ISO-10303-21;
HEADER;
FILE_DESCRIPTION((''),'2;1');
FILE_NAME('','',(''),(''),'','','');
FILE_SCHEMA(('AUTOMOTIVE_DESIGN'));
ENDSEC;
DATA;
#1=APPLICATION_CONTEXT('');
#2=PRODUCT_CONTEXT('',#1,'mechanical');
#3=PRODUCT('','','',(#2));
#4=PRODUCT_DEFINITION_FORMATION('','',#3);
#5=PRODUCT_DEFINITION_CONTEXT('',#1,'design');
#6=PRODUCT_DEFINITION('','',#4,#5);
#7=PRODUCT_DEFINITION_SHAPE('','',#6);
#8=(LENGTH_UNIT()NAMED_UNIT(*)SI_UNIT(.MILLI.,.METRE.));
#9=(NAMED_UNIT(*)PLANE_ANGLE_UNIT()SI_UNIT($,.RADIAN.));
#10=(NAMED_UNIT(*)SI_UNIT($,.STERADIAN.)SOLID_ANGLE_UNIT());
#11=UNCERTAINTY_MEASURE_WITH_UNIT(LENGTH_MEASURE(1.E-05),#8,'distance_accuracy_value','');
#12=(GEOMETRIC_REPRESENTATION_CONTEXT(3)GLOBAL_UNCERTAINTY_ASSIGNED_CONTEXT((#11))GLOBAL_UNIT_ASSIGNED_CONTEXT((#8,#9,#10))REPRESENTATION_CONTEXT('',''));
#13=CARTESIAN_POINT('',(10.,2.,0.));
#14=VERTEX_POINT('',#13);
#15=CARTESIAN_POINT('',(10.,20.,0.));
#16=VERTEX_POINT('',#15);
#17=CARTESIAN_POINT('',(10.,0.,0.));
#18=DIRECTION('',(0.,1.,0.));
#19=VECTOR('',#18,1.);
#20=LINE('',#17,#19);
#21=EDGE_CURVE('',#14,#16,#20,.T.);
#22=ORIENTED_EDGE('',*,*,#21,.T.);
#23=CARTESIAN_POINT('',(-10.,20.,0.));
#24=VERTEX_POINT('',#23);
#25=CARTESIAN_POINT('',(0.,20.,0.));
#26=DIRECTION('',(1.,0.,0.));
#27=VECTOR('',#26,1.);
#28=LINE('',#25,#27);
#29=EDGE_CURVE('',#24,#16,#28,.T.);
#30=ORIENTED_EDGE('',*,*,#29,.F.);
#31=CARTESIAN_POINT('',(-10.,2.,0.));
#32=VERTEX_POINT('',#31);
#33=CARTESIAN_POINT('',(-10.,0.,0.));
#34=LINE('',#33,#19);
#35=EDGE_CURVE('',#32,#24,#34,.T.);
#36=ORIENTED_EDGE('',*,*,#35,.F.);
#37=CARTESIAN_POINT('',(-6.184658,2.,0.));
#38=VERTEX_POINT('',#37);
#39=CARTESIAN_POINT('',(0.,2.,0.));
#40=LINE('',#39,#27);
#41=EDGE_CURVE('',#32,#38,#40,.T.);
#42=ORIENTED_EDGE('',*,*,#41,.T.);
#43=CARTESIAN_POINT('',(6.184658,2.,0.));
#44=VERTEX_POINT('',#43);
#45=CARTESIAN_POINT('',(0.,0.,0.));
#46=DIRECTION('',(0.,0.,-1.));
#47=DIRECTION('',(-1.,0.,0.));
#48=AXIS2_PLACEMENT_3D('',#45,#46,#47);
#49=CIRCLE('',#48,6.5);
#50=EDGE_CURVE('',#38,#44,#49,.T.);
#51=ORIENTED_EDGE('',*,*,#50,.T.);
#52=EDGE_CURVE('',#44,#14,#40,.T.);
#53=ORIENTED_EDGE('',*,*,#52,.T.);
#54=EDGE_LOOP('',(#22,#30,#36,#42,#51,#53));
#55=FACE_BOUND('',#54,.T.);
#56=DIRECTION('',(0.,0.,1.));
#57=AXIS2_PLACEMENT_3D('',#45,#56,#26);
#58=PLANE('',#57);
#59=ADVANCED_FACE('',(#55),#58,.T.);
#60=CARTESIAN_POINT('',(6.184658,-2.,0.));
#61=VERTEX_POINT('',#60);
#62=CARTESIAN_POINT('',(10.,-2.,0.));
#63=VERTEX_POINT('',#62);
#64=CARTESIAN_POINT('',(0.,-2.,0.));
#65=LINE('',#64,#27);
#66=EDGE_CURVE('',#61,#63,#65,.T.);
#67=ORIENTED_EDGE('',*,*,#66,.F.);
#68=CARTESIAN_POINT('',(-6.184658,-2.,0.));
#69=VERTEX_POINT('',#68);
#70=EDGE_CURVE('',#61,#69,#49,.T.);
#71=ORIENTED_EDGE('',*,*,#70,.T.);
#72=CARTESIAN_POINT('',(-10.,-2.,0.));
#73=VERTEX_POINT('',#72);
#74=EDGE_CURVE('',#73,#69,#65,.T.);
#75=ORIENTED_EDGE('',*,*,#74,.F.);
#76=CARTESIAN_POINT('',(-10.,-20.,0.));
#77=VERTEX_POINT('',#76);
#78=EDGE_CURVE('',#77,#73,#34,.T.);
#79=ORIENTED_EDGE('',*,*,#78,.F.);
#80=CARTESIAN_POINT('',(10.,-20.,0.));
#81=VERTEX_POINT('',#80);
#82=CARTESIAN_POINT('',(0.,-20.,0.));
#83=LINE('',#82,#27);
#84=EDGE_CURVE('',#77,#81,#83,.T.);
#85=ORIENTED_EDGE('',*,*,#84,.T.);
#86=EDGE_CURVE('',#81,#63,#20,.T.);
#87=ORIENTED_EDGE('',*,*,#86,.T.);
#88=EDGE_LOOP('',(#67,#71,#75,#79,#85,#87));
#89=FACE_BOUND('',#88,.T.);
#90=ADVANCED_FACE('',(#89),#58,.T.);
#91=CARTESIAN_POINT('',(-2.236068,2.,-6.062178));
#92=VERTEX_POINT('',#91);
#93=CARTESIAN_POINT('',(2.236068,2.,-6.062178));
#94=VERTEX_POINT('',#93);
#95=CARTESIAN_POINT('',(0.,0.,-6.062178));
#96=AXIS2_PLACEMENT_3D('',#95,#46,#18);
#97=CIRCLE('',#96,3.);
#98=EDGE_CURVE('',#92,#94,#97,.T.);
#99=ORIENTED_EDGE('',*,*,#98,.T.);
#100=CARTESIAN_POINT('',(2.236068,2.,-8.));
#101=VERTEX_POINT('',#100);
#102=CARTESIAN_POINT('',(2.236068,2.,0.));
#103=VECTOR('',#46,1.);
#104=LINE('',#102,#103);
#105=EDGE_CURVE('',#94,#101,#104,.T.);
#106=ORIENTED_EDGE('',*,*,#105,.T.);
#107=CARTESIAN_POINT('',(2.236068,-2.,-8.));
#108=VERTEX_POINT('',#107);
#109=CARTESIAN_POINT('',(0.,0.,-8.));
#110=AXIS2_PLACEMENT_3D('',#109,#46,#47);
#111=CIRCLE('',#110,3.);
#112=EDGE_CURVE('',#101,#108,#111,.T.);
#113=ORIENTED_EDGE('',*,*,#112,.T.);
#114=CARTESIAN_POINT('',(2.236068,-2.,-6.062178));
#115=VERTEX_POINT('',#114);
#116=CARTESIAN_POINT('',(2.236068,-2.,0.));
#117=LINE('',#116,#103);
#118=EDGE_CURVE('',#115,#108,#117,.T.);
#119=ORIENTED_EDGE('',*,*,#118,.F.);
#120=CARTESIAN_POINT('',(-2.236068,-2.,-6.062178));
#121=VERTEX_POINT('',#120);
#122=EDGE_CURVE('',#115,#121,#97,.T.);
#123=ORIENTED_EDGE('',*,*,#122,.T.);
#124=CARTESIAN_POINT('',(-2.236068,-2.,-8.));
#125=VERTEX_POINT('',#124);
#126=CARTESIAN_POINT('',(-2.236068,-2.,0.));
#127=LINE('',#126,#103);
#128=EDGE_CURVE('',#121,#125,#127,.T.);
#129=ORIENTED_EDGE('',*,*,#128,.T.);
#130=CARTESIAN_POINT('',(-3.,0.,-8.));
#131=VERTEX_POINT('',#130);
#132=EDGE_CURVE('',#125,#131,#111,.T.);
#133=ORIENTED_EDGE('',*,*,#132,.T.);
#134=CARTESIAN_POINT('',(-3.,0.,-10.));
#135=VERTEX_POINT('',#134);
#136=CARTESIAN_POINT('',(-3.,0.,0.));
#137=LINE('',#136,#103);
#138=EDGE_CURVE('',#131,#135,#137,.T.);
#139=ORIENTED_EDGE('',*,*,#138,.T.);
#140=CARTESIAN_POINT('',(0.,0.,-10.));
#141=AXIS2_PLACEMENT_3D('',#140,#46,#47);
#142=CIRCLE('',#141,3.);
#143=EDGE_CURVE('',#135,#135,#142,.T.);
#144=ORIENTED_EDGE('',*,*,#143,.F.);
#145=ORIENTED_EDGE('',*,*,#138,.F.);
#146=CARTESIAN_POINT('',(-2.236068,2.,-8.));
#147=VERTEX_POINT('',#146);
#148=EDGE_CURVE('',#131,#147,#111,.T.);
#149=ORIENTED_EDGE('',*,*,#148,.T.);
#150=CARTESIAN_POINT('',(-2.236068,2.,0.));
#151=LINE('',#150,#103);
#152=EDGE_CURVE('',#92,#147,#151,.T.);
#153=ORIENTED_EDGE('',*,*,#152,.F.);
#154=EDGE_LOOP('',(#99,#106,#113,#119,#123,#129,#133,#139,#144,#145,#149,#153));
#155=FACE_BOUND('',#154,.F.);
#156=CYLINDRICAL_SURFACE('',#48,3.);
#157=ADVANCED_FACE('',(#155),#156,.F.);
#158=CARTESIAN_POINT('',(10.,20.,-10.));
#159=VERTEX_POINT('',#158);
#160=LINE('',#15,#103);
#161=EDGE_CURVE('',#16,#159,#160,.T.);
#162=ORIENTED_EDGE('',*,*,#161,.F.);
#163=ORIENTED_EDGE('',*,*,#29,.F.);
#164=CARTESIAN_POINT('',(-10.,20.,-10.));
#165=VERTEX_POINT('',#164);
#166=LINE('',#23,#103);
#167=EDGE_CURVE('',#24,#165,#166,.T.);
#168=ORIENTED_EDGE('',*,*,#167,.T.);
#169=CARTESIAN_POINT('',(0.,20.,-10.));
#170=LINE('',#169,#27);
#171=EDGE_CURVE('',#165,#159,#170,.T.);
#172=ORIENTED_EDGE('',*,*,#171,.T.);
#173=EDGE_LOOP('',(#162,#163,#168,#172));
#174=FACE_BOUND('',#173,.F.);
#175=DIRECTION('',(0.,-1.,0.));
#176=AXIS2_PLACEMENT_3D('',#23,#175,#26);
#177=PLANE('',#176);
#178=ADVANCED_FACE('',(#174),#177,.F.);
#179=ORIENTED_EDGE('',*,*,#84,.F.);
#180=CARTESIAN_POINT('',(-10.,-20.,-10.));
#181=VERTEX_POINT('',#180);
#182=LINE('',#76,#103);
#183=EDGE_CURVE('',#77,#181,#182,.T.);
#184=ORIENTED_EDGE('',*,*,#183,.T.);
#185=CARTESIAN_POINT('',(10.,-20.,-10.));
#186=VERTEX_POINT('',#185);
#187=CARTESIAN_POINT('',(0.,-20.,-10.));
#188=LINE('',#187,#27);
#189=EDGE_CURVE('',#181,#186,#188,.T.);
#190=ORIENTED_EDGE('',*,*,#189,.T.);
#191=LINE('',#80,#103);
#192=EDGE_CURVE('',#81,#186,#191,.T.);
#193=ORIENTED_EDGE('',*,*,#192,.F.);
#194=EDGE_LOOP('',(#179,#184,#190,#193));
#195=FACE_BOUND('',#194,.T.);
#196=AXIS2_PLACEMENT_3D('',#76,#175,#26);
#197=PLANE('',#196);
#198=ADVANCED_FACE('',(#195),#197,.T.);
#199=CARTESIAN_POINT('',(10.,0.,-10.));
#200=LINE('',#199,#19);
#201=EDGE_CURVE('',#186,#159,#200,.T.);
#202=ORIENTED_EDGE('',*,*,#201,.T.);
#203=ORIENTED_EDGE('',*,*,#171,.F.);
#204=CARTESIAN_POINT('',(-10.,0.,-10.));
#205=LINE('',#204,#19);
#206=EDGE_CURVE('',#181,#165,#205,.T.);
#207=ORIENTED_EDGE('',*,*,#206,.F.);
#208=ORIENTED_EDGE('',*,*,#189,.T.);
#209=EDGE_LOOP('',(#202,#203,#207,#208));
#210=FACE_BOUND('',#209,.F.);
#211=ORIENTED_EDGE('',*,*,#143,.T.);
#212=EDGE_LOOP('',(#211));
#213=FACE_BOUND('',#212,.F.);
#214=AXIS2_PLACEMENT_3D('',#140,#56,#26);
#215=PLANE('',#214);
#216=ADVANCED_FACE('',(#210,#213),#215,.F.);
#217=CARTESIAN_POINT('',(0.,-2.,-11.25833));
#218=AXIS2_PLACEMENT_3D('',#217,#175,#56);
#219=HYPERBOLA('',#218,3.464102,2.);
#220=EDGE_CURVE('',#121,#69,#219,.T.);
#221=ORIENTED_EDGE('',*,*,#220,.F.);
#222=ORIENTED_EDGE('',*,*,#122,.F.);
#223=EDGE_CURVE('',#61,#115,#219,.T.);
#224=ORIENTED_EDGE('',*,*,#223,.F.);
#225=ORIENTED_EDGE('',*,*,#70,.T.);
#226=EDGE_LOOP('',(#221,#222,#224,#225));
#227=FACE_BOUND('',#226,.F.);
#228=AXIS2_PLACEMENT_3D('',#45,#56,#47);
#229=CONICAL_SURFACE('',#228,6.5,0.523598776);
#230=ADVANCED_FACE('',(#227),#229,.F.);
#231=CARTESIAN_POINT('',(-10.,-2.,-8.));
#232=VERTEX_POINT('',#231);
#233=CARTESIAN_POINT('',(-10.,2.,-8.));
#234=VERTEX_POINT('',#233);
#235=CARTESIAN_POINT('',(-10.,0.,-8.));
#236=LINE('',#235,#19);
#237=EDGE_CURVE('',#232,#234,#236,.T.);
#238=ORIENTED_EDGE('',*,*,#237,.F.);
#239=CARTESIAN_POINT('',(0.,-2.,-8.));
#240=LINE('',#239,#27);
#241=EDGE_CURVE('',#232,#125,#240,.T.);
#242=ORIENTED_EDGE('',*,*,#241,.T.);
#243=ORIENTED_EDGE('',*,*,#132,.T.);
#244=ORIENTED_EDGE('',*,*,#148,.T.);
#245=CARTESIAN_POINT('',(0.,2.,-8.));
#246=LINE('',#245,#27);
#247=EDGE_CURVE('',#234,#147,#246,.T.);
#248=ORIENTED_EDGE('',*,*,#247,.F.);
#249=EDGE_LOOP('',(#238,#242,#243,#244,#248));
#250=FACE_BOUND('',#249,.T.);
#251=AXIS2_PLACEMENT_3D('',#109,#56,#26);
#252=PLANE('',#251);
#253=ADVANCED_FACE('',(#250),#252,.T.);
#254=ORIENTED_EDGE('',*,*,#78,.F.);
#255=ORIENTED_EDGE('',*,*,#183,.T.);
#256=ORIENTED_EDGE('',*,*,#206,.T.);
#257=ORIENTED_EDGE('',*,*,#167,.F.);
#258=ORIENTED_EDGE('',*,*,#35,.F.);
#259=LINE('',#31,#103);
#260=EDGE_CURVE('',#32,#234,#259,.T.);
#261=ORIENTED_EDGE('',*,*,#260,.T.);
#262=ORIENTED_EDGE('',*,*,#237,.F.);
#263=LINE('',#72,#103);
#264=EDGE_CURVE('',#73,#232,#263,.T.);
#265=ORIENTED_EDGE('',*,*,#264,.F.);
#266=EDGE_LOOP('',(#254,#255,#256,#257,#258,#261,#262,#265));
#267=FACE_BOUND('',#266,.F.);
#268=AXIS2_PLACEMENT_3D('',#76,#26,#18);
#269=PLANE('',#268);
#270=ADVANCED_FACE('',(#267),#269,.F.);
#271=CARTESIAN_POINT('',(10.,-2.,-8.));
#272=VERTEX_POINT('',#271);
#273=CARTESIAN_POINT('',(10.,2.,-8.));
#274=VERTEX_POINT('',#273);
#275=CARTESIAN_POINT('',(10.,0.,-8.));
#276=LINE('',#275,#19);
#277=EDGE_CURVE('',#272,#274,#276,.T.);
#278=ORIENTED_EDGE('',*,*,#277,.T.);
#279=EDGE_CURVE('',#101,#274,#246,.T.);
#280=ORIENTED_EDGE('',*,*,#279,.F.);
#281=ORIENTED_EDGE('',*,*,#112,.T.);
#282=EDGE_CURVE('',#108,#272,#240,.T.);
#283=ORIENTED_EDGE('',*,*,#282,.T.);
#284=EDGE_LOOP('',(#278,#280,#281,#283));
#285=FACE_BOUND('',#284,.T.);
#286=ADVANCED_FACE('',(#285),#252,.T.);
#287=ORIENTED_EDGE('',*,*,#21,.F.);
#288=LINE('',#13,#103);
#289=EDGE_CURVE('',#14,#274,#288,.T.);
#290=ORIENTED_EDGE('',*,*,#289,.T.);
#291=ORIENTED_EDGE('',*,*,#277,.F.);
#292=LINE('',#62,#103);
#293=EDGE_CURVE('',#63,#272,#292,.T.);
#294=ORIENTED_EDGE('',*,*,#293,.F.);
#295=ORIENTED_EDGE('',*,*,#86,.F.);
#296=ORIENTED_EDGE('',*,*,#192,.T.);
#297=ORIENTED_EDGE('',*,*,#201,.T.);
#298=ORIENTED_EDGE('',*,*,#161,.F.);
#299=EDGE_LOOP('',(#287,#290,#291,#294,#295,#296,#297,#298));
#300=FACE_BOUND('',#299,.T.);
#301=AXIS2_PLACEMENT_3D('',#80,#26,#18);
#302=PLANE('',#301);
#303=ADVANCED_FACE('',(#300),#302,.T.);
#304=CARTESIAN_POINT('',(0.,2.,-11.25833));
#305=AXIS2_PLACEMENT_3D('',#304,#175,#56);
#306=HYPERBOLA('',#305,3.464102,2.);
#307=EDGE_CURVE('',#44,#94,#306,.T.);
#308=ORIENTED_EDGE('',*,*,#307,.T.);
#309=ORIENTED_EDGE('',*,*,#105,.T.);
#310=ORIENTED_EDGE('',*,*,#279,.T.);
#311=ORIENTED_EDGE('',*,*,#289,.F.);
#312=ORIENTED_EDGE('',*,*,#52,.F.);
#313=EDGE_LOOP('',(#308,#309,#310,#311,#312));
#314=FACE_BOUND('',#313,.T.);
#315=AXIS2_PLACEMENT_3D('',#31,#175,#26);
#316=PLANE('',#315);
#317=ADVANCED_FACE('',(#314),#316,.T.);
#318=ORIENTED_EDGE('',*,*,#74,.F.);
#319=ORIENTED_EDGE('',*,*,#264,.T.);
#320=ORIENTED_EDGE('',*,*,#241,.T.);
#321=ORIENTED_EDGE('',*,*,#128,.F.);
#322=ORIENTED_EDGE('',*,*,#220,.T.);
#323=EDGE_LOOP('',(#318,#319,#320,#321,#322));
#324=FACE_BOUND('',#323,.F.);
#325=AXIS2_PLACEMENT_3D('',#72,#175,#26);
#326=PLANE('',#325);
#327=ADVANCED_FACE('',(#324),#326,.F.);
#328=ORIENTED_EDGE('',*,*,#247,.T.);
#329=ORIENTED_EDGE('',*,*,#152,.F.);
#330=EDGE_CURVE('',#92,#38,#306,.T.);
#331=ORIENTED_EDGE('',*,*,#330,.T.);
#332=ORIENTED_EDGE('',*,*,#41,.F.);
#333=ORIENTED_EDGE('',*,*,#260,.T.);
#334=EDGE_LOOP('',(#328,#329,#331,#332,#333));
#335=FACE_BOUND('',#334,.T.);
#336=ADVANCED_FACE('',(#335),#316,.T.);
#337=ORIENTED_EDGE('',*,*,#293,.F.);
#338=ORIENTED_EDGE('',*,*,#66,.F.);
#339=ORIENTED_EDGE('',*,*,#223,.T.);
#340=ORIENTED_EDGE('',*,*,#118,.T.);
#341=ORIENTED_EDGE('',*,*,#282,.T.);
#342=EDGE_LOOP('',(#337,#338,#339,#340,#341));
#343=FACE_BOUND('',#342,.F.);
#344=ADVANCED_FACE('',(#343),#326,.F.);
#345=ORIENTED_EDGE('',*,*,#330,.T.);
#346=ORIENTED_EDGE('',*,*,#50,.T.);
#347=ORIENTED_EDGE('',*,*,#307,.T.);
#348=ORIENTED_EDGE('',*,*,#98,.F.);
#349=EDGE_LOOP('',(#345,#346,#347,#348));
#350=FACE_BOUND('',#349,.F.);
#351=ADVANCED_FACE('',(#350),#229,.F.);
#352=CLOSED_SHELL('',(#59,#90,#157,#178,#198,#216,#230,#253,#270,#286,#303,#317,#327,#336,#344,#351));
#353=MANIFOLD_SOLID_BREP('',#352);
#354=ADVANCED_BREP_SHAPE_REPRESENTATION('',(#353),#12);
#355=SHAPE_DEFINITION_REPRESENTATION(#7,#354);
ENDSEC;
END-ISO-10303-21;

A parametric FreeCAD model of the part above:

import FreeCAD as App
import Part
import Sketcher
Q = App.Units.Quantity

doc = App.newDocument("Part")
params = doc.addObject("Spreadsheet::Sheet", "Params")
for row, (alias, value) in enumerate([
    ("sketch1_width", "20 mm"),
    ("sketch1_height", "40 mm"),
    ("pad1_length", "10 mm"),
    ("sketch2_diameter", "6 mm"),
    ("hole_diameter", "6 mm"),
    ("hole_csink_diameter", "13 mm"),
    ("sketch3_width", "20 mm"),
    ("sketch3_height", "4 mm"),
    ("pocket1_length", "8 mm"),
], start=1):
    params.set(f"A{row}", alias)
    params.set(f"B{row}", "=" + value)
    params.setAlias(f"B{row}", alias)

body = doc.addObject("PartDesign::Body", "Body")

# Sketch on XY plane
sketch1 = body.newObject("Sketcher::SketchObject", "Sketch")
sketch1.AttachmentSupport = (doc.getObject("XY_Plane"), [""])
sketch1.MapMode = "FlatFace"
sketch1.addGeometry([
    Part.LineSegment(App.Vector(-10, 20, 0), App.Vector(-10, -20, 0)),
    Part.LineSegment(App.Vector(-10, -20, 0), App.Vector(10, -20, 0)),
    Part.LineSegment(App.Vector(10, -20, 0), App.Vector(10, 20, 0)),
    Part.LineSegment(App.Vector(10, 20, 0), App.Vector(-10, 20, 0)),
], False)
sketch1.addConstraint([
    Sketcher.Constraint("Coincident", 0, 2, 1, 1),
    Sketcher.Constraint("Coincident", 1, 2, 2, 1),
    Sketcher.Constraint("Coincident", 2, 2, 3, 1),
    Sketcher.Constraint("Coincident", 3, 2, 0, 1),
    Sketcher.Constraint("Vertical", 0),
    Sketcher.Constraint("Horizontal", 1),
    Sketcher.Constraint("Vertical", 2),
    Sketcher.Constraint("Horizontal", 3),
    Sketcher.Constraint("Symmetric", 0, 2, 2, 2, -1, 1),
    Sketcher.Constraint("DistanceX", 1, 1, 1, 2, Q("20 mm")),
    Sketcher.Constraint("DistanceY", 0, 2, 0, 1, Q("40 mm")),
])
sketch1.setExpression("Constraints[9]", "Params.sketch1_width")
sketch1.setExpression("Constraints[10]", "Params.sketch1_height")
pad1 = body.newObject("PartDesign::Pad", "Pad")
pad1.Profile = sketch1
pad1.setExpression("Length", "Params.pad1_length")
pad1.Reversed = True

# Sketch on XY plane
sketch2 = body.newObject("Sketcher::SketchObject", "Sketch001")
sketch2.AttachmentSupport = (doc.getObject("XY_Plane"), [""])
sketch2.MapMode = "FlatFace"
sketch2.addGeometry(Part.Circle(App.Vector(0, 0, 0), App.Vector(0, 0, 1), 3), False)
sketch2.addConstraint([
    Sketcher.Constraint("Coincident", 0, 3, -1, 1),
    Sketcher.Constraint("Diameter", 0, Q("6 mm")),
])
sketch2.setExpression("Constraints[1]", "Params.sketch2_diameter")
doc.recompute()
hole = body.newObject("PartDesign::Hole", "Hole")
hole.Profile = sketch2
hole.ThreadType = "None"
hole.setExpression("Diameter", "Params.hole_diameter")
hole.DepthType = "ThroughAll"
hole.HoleCutType = "Countersink"
hole.setExpression("HoleCutDiameter", "Params.hole_csink_diameter")
hole.HoleCutCountersinkAngle = 60

# Sketch on XY plane
sketch3 = body.newObject("Sketcher::SketchObject", "Sketch002")
sketch3.AttachmentSupport = (doc.getObject("XY_Plane"), [""])
sketch3.MapMode = "FlatFace"
sketch3.addGeometry([
    Part.LineSegment(App.Vector(-10, 2, 0), App.Vector(-10, -2, 0)),
    Part.LineSegment(App.Vector(-10, -2, 0), App.Vector(10, -2, 0)),
    Part.LineSegment(App.Vector(10, -2, 0), App.Vector(10, 2, 0)),
    Part.LineSegment(App.Vector(10, 2, 0), App.Vector(-10, 2, 0)),
], False)
sketch3.addConstraint([
    Sketcher.Constraint("Coincident", 0, 2, 1, 1),
    Sketcher.Constraint("Coincident", 1, 2, 2, 1),
    Sketcher.Constraint("Coincident", 2, 2, 3, 1),
    Sketcher.Constraint("Coincident", 3, 2, 0, 1),
    Sketcher.Constraint("Vertical", 0),
    Sketcher.Constraint("Horizontal", 1),
    Sketcher.Constraint("Vertical", 2),
    Sketcher.Constraint("Horizontal", 3),
    Sketcher.Constraint("Symmetric", 0, 2, 2, 2, -1, 1),
    Sketcher.Constraint("DistanceX", 1, 1, 1, 2, Q("20 mm")),
    Sketcher.Constraint("DistanceY", 0, 2, 0, 1, Q("4 mm")),
])
sketch3.setExpression("Constraints[9]", "Params.sketch3_width")
sketch3.setExpression("Constraints[10]", "Params.sketch3_height")
pocket1 = body.newObject("PartDesign::Pocket", "Pocket")
pocket1.Profile = sketch3
pocket1.setExpression("Length", "Params.pocket1_length")

doc.recompute()
